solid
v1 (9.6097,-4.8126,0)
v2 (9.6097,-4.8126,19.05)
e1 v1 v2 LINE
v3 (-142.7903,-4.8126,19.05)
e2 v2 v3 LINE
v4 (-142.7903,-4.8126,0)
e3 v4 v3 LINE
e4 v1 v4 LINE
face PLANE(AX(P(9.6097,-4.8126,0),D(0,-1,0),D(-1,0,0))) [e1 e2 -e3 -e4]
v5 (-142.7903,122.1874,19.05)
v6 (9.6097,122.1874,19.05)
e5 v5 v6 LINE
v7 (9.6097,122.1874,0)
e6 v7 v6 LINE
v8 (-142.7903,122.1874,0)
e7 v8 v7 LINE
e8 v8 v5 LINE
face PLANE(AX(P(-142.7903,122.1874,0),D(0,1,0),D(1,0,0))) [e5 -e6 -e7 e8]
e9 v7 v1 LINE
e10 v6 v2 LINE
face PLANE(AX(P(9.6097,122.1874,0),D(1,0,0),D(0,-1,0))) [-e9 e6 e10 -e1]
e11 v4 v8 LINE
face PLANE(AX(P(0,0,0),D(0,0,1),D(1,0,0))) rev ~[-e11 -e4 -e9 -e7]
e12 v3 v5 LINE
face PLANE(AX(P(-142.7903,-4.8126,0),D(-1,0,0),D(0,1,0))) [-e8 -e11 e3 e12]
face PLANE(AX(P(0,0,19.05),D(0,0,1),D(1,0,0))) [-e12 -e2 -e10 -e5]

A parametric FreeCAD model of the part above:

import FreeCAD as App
import Part
import Sketcher

V = App.Vector
Q = App.Units.Quantity


def add_polygon(sketch, points):
    """Adds a closed chain of lines whose ends are joined by coincident constraints."""
    first, n = sketch.GeometryCount, len(points)
    for a, b in zip(points, points[1:] + points[:1]):
        sketch.addGeometry(Part.LineSegment(App.Vector(*a, 0), App.Vector(*b, 0)), False)
    for i in range(n):
        sketch.addConstraint(Sketcher.Constraint("Coincident", first + i, 2, first + (i + 1) % n, 1))

doc = App.newDocument("Part")
body = doc.addObject("PartDesign::Body", "Body")

sketch1 = body.newObject("Sketcher::SketchObject", "Sketch")
sketch1.AttachmentSupport = (doc.getObject("XY_Plane"), [""])
sketch1.MapMode = "FlatFace"
add_polygon(sketch1, [(-143, -5), (10, -5), (10, 122), (-143, 122)])
sketch1.addConstraint(Sketcher.Constraint("Horizontal", 0))
sketch1.addConstraint(Sketcher.Constraint("Vertical", 1))
sketch1.addConstraint(Sketcher.Constraint("Horizontal", 2))
sketch1.addConstraint(Sketcher.Constraint("Vertical", 3))
sketch1.addConstraint(Sketcher.Constraint("DistanceX", 0, 1, 0, 2, Q("6 in")))
sketch1.addConstraint(Sketcher.Constraint("DistanceY", 1, 1, 1, 2, Q("5 in")))
sketch1.addConstraint(Sketcher.Constraint("DistanceX", -1, 1, 0, 2, Q("9.6097 mm")))
sketch1.addConstraint(Sketcher.Constraint("DistanceY", 0, 2, -1, 1, Q("4.8126 mm")))
pad1 = body.newObject("PartDesign::Pad", "Pad")
pad1.Profile = sketch1
pad1.Length = Q("0.75 in")

doc.recompute()
